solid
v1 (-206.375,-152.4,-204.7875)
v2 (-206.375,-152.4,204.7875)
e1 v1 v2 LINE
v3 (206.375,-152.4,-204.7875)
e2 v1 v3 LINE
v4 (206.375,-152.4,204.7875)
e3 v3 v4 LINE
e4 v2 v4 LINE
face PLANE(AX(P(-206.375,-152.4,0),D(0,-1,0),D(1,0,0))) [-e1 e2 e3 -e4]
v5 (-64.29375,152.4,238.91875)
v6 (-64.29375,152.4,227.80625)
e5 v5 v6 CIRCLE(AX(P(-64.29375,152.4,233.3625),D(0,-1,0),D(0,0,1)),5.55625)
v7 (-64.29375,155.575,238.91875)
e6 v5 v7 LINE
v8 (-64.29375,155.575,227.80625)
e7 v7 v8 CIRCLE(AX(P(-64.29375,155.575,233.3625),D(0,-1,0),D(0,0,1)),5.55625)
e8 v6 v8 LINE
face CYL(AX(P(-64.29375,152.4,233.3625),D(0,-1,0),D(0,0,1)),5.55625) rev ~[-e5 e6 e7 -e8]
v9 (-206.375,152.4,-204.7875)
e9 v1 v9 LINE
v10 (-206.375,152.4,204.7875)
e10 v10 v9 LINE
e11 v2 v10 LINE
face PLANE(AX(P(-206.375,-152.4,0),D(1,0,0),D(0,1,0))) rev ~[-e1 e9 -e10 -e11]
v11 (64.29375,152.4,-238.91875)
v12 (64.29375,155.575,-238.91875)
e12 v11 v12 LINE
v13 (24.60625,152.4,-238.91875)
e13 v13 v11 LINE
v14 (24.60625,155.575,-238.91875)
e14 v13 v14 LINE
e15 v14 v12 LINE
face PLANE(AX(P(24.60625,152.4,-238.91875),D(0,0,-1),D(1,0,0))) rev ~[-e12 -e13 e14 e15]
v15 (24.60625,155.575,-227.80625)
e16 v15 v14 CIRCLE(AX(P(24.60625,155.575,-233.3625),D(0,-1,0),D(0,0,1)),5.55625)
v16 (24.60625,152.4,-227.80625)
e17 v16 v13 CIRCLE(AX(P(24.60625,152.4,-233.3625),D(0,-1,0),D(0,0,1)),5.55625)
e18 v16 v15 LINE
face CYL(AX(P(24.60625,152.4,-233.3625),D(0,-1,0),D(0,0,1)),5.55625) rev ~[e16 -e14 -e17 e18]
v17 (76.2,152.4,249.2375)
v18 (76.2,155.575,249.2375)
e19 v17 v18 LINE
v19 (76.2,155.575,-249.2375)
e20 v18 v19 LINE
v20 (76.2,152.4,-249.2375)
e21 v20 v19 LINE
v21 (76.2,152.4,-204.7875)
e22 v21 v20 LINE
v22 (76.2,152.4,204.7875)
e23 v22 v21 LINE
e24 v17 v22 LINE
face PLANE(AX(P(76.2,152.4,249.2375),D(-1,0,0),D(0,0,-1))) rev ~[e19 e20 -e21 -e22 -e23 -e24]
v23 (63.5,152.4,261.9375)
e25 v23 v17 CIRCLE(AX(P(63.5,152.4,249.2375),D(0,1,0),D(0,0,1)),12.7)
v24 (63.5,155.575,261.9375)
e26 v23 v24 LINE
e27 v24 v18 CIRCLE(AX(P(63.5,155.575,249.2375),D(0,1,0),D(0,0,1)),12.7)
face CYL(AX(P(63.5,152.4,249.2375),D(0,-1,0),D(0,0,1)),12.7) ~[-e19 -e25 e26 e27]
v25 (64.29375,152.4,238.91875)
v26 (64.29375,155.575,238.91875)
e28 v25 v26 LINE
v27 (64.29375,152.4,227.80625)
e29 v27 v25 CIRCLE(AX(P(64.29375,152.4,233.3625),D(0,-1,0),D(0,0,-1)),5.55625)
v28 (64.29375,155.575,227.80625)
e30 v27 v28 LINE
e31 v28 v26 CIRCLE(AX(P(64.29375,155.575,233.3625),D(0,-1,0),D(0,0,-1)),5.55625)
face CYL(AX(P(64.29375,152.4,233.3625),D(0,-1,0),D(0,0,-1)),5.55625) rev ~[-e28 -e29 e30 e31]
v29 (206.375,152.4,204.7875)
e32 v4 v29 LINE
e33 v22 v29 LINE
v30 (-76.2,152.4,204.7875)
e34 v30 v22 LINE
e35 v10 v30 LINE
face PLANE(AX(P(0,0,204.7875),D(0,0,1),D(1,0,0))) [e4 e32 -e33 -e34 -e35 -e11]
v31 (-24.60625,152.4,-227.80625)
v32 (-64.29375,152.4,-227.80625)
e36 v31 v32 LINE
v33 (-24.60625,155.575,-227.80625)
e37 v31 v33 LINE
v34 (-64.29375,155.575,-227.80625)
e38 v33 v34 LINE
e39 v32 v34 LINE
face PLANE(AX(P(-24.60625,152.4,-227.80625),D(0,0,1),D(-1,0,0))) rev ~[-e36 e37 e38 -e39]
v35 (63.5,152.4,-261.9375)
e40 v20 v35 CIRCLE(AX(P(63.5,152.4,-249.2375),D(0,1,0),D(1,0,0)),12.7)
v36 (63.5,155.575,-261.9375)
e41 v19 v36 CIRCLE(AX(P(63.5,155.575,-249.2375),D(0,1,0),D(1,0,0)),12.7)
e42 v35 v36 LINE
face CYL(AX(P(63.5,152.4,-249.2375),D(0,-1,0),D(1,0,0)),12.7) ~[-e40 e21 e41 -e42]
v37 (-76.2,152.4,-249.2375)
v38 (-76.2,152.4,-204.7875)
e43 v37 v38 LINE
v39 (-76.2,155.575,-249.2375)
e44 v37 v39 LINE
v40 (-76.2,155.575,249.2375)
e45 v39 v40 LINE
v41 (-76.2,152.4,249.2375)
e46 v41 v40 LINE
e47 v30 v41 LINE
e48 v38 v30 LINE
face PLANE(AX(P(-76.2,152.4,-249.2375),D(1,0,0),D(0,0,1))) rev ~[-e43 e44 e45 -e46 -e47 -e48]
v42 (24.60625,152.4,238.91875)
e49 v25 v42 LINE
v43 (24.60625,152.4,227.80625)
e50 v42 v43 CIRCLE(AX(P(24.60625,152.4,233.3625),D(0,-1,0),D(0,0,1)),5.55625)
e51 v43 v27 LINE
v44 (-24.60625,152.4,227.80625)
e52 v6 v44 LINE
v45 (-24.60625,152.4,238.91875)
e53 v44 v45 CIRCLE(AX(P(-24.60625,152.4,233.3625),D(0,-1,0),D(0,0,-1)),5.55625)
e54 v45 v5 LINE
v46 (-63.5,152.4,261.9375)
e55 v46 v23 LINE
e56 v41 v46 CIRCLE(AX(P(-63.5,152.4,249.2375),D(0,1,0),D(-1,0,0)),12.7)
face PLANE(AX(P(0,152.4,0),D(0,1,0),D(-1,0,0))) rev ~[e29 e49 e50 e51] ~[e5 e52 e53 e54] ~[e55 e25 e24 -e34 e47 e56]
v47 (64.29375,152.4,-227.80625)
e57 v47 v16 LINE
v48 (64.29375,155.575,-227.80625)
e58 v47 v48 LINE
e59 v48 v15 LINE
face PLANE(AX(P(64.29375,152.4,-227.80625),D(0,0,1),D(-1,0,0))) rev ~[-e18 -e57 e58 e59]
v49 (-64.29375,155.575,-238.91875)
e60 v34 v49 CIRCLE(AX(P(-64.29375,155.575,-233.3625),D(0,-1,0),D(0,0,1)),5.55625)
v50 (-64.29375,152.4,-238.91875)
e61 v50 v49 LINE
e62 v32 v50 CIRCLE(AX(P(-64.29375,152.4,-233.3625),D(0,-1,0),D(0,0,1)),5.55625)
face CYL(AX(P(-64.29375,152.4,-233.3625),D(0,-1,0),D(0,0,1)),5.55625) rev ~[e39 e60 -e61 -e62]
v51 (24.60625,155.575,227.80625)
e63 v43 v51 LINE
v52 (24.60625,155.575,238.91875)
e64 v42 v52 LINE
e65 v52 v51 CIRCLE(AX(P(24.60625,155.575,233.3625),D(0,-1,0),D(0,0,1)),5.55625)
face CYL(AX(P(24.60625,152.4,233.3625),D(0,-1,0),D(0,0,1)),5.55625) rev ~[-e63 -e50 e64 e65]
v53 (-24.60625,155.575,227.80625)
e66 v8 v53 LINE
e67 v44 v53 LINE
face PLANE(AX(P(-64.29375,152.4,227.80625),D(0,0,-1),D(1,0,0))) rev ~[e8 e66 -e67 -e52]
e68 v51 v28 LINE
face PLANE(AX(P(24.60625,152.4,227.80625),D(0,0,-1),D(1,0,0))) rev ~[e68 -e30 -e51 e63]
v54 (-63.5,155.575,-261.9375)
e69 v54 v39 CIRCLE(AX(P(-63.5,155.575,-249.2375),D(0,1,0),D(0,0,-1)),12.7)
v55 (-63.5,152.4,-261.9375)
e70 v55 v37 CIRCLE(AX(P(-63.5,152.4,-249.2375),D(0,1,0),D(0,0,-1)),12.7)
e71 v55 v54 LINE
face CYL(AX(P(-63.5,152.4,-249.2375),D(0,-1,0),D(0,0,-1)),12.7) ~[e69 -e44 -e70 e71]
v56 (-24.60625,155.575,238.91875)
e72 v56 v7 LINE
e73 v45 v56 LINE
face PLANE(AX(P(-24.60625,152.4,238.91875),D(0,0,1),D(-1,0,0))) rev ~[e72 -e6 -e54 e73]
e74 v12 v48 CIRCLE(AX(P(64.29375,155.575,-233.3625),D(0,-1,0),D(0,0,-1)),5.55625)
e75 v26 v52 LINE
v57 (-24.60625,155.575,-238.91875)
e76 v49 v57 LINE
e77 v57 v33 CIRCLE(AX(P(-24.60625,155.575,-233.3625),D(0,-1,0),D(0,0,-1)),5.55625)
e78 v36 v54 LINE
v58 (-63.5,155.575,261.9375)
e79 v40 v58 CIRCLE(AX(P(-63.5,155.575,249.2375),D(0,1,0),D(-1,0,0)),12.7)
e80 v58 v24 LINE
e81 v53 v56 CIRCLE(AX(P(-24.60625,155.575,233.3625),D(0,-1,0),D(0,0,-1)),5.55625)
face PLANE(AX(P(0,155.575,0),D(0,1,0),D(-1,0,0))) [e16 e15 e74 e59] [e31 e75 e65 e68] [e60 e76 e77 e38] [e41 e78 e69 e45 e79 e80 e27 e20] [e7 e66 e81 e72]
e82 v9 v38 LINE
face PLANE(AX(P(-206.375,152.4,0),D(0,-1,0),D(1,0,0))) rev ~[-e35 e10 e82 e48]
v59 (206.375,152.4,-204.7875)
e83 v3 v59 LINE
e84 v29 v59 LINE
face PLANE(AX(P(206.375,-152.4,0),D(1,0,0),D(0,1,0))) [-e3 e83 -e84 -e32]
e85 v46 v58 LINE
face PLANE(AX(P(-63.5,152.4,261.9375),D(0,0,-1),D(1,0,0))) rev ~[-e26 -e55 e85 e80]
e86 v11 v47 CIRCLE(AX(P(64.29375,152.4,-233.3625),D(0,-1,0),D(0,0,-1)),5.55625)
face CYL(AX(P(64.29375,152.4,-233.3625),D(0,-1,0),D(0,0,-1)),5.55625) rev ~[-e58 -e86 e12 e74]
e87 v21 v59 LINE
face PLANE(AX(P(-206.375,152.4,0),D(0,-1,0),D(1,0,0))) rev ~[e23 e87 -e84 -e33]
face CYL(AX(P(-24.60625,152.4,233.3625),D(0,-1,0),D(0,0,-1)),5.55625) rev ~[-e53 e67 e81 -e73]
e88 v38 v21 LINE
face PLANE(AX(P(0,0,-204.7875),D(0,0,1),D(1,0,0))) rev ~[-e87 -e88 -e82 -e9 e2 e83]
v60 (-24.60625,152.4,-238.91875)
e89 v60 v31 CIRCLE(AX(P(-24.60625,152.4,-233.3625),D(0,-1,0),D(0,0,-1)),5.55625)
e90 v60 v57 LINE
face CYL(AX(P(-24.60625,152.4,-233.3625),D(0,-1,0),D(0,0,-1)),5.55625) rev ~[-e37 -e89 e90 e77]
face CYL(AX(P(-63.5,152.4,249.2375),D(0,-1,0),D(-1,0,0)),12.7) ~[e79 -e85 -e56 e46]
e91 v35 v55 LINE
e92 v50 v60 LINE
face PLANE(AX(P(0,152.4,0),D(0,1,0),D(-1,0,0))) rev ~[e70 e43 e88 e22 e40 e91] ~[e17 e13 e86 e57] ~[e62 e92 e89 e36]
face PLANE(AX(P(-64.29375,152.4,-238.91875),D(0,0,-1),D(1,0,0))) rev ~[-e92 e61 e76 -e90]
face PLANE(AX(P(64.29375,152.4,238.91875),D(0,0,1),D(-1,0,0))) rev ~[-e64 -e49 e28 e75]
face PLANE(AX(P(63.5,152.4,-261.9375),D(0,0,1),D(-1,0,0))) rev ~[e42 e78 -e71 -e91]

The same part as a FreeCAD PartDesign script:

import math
import FreeCAD as App
import Part
import Sketcher

V = App.Vector
Q = App.Units.Quantity

doc = App.newDocument("Part")
body = doc.addObject("PartDesign::Body", "Body")

# Sketch on XY plane
sketch1 = body.newObject("Sketcher::SketchObject", "Sketch")
sketch1.AttachmentSupport = (doc.getObject("XY_Plane"), [""])
sketch1.MapMode = "FlatFace"
sketch1.addGeometry([
    Part.LineSegment(V(-206.375, 152.4, 0), V(-206.375, -152.4, 0)),
    Part.LineSegment(V(-206.375, -152.4, 0), V(206.375, -152.4, 0)),
    Part.LineSegment(V(206.375, -152.4, 0), V(206.375, 152.4, 0)),
    Part.LineSegment(V(206.375, 152.4, 0), V(-206.375, 152.4, 0)),
], False)
sketch1.addConstraint([
    Sketcher.Constraint("Coincident", 0, 2, 1, 1),
    Sketcher.Constraint("Coincident", 1, 2, 2, 1),
    Sketcher.Constraint("Coincident", 2, 2, 3, 1),
    Sketcher.Constraint("Coincident", 3, 2, 0, 1),
    Sketcher.Constraint("Vertical", 0),
    Sketcher.Constraint("Horizontal", 1),
    Sketcher.Constraint("Vertical", 2),
    Sketcher.Constraint("Horizontal", 3),
    Sketcher.Constraint("Symmetric", 0, 2, 2, 2, -1, 1),
    Sketcher.Constraint("DistanceY", 0, 2, 0, 1, Q("12 in")),
    Sketcher.Constraint("DistanceX", 1, 1, 1, 2, Q("16.25 in")),
])
pad1 = body.newObject("PartDesign::Pad", "Pad")
pad1.Profile = sketch1
pad1.Length = Q("16.125 in")
pad1.Midplane = True

# Sketch on XZ plane
sketch2 = body.newObject("Sketcher::SketchObject", "Sketch001")
sketch2.AttachmentSupport = (doc.getObject("XZ_Plane"), [""])
sketch2.MapMode = "FlatFace"
sketch2.AttachmentOffset = App.Placement(V(0, 0, -6 * 25.4), App.Rotation())
sketch2.addGeometry([
    Part.ArcOfCircle(Part.Circle(V(-63.5, 249.2375, 0), V(0, 0, 1), 12.7), math.radians(90), math.radians(180)),  # 0
    Part.LineSegment(V(-63.5, 261.9375, 0), V(63.5, 261.9375, 0)),  # 1
    Part.ArcOfCircle(Part.Circle(V(63.5, 249.2375, 0), V(0, 0, 1), 12.7), math.radians(0), math.radians(90)),  # 2
    Part.LineSegment(V(76.2, 249.2375, 0), V(76.2, -249.2375, 0)),  # 3
    Part.ArcOfCircle(Part.Circle(V(63.5, -249.2375, 0), V(0, 0, 1), 12.7), math.radians(-90), math.radians(0)),  # 4
    Part.LineSegment(V(63.5, -261.9375, 0), V(-63.5, -261.9375, 0)),  # 5
    Part.ArcOfCircle(Part.Circle(V(-63.5, -249.2375, 0), V(0, 0, 1), 12.7), math.radians(180), math.radians(270)),  # 6
    Part.LineSegment(V(-76.2, -249.2375, 0), V(-76.2, 249.2375, 0)),  # 7
    Part.ArcOfCircle(Part.Circle(V(64.29375, -233.3625, 0), V(0, 0, 1), 5.55625), math.radians(-90), math.radians(90)),  # 8
    Part.LineSegment(V(64.29375, -227.80625, 0), V(24.60625, -227.80625, 0)),  # 9
    Part.ArcOfCircle(Part.Circle(V(24.60625, -233.3625, 0), V(0, 0, 1), 5.55625), math.radians(90), math.radians(270)),  # 10
    Part.LineSegment(V(24.60625, -238.91875, 0), V(64.29375, -238.91875, 0)),  # 11
    Part.ArcOfCircle(Part.Circle(V(-24.60625, -233.3625, 0), V(0, 0, 1), 5.55625), math.radians(-90), math.radians(90)),  # 12
    Part.LineSegment(V(-24.60625, -227.80625, 0), V(-64.29375, -227.80625, 0)),  # 13
    Part.ArcOfCircle(Part.Circle(V(-64.29375, -233.3625, 0), V(0, 0, 1), 5.55625), math.radians(90), math.radians(270)),  # 14
    Part.LineSegment(V(-64.29375, -238.91875, 0), V(-24.60625, -238.91875, 0)),  # 15
    Part.ArcOfCircle(Part.Circle(V(64.29375, 233.3625, 0), V(0, 0, 1), 5.55625), math.radians(-90), math.radians(90)),  # 16
    Part.LineSegment(V(64.29375, 238.91875, 0), V(24.60625, 238.91875, 0)),  # 17
    Part.ArcOfCircle(Part.Circle(V(24.60625, 233.3625, 0), V(0, 0, 1), 5.55625), math.radians(90), math.radians(270)),  # 18
    Part.LineSegment(V(24.60625, 227.80625, 0), V(64.29375, 227.80625, 0)),  # 19
    Part.ArcOfCircle(Part.Circle(V(-24.60625, 233.3625, 0), V(0, 0, 1), 5.55625), math.radians(-90), math.radians(90)),  # 20
    Part.LineSegment(V(-24.60625, 238.91875, 0), V(-64.29375, 238.91875, 0)),  # 21
    Part.ArcOfCircle(Part.Circle(V(-64.29375, 233.3625, 0), V(0, 0, 1), 5.55625), math.radians(90), math.radians(270)),  # 22
    Part.LineSegment(V(-64.29375, 227.80625, 0), V(-24.60625, 227.80625, 0)),  # 23
], False)
sketch2.addConstraint([
    Sketcher.Constraint("Tangent", 0, 1, 1, 1),
    Sketcher.Constraint("Tangent", 1, 2, 2, 2),
    Sketcher.Constraint("Tangent", 2, 1, 3, 1),
    Sketcher.Constraint("Tangent", 3, 2, 4, 2),
    Sketcher.Constraint("Tangent", 4, 1, 5, 1),
    Sketcher.Constraint("Tangent", 5, 2, 6, 2),
    Sketcher.Constraint("Tangent", 6, 1, 7, 1),
    Sketcher.Constraint("Tangent", 7, 2, 0, 2),
    Sketcher.Constraint("Tangent", 8, 2, 9, 1),
    Sketcher.Constraint("Tangent", 9, 2, 10, 1),
    Sketcher.Constraint("Tangent", 10, 2, 11, 1),
    Sketcher.Constraint("Tangent", 11, 2, 8, 1),
    Sketcher.Constraint("Tangent", 12, 2, 13, 1),
    Sketcher.Constraint("Tangent", 13, 2, 14, 1),
    Sketcher.Constraint("Tangent", 14, 2, 15, 1),
    Sketcher.Constraint("Tangent", 15, 2, 12, 1),
    Sketcher.Constraint("Tangent", 16, 2, 17, 1),
    Sketcher.Constraint("Tangent", 17, 2, 18, 1),
    Sketcher.Constraint("Tangent", 18, 2, 19, 1),
    Sketcher.Constraint("Tangent", 19, 2, 16, 1),
    Sketcher.Constraint("Tangent", 20, 2, 21, 1),
    Sketcher.Constraint("Tangent", 21, 2, 22, 1),
    Sketcher.Constraint("Tangent", 22, 2, 23, 1),
    Sketcher.Constraint("Tangent", 23, 2, 20, 1),
    Sketcher.Constraint("Horizontal", 1),
    Sketcher.Constraint("Vertical", 3),
    Sketcher.Constraint("Horizontal", 5),
    Sketcher.Constraint("Vertical", 7),
    Sketcher.Constraint("Horizontal", 9),
    Sketcher.Constraint("Horizontal", 11),
    Sketcher.Constraint("Horizontal", 13),
    Sketcher.Constraint("Horizontal", 15),
    Sketcher.Constraint("Horizontal", 17),
    Sketcher.Constraint("Horizontal", 19),
    Sketcher.Constraint("Horizontal", 21),
    Sketcher.Constraint("Horizontal", 23),
    Sketcher.Constraint("Equal", 0, 2),
    Sketcher.Constraint("Equal", 2, 4),
    Sketcher.Constraint("Equal", 4, 6),
    Sketcher.Constraint("Equal", 10, 12),
    Sketcher.Constraint("Equal", 14, 16),
    Sketcher.Constraint("Equal", 18, 20),
    Sketcher.Constraint("Symmetric", 0, 3, 4, 3, -1, 1),
    Sketcher.Constraint("Symmetric", 14, 3, 16, 3, -1, 1),
    Sketcher.Constraint("Symmetric", 10, 3, 20, 3, -1, 1),
    Sketcher.Constraint("Symmetric", 10, 3, 12, 3, -2),
    Sketcher.Constraint("Vertical", 8, 3, 16, 3),
    Sketcher.Constraint("Vertical", 10, 3, 18, 3),
    Sketcher.Constraint("Vertical", 14, 3, 22, 3),
    Sketcher.Constraint("Radius", 0, Q("0.5 in")),
    Sketcher.Constraint("DistanceX", 1, 1, 1, 2, Q("5 in")),
    Sketcher.Constraint("Radius", 8, Q("0.21875 in")),
    Sketcher.Constraint("DistanceY", 8, 3, 2, 3, Q("19 in")),
    Sketcher.Constraint("DistanceX", 12, 3, 8, 3, Q("3.5 in")),
    Sketcher.Constraint("DistanceX", 9, 2, 9, 1, Q("1.5625 in")),
    Sketcher.Constraint("DistanceY", 3, 2, 3, 1, Q("19.625 in")),
])
pad2 = body.newObject("PartDesign::Pad", "Pad001")
pad2.Profile = sketch2
pad2.Length = Q("0.125 in")
pad2.Reversed = True

doc.recompute()
